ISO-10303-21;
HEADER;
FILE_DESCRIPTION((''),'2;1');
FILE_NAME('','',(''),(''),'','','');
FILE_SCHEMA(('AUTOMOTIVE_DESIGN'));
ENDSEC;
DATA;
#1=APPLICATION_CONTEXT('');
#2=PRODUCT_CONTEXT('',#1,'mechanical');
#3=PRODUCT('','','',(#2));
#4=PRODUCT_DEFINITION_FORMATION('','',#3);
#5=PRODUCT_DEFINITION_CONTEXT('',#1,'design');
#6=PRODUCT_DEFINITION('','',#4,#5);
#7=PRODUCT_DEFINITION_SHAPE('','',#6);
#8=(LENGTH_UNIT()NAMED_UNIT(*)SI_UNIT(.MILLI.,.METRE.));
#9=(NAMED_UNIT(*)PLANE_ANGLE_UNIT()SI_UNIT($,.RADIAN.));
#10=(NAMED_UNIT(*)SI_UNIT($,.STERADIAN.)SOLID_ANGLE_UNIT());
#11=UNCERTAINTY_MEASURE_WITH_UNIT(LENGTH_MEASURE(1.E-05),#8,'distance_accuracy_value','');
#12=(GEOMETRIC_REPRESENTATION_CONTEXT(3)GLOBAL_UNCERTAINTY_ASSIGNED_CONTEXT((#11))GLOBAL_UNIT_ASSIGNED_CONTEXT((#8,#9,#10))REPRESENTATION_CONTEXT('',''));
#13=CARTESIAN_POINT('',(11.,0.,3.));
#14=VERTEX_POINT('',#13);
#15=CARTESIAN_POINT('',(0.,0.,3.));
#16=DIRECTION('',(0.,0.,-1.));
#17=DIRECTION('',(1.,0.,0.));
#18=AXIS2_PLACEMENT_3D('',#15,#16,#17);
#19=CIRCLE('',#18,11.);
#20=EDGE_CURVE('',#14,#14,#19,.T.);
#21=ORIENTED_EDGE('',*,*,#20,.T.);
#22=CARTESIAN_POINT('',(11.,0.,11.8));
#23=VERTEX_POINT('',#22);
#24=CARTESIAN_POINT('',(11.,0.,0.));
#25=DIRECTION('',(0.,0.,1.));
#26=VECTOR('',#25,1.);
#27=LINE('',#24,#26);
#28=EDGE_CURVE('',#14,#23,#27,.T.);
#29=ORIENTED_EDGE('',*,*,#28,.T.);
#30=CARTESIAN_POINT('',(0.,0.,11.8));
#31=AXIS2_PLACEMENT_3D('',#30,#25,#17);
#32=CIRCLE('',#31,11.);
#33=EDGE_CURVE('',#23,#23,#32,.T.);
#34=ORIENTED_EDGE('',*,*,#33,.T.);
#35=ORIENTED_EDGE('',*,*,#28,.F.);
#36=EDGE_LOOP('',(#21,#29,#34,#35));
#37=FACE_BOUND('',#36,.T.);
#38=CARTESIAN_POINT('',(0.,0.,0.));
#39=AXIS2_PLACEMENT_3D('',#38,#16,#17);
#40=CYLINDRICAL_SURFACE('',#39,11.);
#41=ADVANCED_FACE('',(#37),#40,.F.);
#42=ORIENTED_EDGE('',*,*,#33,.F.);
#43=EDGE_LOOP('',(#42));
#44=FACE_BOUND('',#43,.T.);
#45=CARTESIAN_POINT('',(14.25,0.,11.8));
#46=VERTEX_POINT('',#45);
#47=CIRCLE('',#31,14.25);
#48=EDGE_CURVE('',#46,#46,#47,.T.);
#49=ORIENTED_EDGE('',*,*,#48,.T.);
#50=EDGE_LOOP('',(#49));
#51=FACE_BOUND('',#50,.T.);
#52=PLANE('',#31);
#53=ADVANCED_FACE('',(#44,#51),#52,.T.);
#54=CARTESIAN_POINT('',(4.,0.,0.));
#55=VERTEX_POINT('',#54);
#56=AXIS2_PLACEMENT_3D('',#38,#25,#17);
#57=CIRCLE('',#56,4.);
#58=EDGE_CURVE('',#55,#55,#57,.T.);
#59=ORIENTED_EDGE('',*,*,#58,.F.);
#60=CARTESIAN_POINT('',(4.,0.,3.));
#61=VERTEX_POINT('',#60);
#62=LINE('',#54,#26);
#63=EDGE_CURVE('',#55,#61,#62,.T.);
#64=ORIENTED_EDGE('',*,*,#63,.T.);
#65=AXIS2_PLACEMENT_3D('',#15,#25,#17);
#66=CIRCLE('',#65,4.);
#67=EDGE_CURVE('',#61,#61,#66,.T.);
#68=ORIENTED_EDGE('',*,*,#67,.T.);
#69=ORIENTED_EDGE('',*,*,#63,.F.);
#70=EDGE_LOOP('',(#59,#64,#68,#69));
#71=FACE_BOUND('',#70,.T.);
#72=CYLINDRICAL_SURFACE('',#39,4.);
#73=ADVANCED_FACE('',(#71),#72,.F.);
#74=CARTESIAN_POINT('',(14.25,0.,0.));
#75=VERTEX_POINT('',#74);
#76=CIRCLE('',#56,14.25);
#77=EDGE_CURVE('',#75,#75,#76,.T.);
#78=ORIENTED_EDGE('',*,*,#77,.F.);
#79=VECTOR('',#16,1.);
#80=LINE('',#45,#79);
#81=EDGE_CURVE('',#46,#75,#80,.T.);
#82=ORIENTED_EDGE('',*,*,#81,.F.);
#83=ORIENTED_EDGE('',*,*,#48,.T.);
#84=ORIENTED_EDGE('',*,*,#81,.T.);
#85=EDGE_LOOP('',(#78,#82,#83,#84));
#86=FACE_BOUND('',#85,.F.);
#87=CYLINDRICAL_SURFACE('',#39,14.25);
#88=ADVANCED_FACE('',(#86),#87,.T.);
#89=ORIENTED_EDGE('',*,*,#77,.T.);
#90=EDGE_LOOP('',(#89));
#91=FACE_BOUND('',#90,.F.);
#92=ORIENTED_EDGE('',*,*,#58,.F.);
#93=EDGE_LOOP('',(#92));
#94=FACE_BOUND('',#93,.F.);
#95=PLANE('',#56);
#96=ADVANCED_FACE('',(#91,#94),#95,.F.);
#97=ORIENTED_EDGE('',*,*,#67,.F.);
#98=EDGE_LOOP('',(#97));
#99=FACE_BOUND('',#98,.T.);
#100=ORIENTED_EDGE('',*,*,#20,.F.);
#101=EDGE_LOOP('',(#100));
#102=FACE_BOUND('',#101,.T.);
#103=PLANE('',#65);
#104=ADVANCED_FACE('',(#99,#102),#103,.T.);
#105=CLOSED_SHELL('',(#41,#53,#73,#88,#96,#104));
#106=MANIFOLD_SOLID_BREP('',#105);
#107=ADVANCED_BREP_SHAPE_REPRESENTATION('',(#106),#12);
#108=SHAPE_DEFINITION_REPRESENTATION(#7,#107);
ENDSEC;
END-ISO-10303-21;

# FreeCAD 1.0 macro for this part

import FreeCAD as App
import Part
import Sketcher
from FreeCAD import Vector

doc = App.newDocument("Part")
body = doc.addObject("PartDesign::Body", "Body")

sketch1 = doc.addObject("Sketcher::SketchObject", "Sketch")
body.addObject(sketch1)
sketch1.AttachmentSupport = (doc.XY_Plane, [""])
sketch1.MapMode = "FlatFace"
sketch1.addGeometry([
    Part.Circle(Vector(0, 0, 0), Vector(0, 0, 1), 14),
    Part.Circle(Vector(0, 0, 0), Vector(0, 0, 1), 11),
], False)
sketch1.addConstraint([
    Sketcher.Constraint("Coincident", 0, 3, -1, 1),
    Sketcher.Constraint("Coincident", 1, 3, -1, 1),
    Sketcher.Constraint("Diameter", 1, 22.0),
    Sketcher.Constraint("Diameter", 0, 28.5),
])
pad1 = doc.addObject("PartDesign::Pad", "Pad")
body.addObject(pad1)
pad1.Profile = sketch1
pad1.Length = 11.8

sketch2 = doc.addObject("Sketcher::SketchObject", "Sketch001")
body.addObject(sketch2)
sketch2.AttachmentSupport = (doc.XY_Plane, [""])
sketch2.MapMode = "FlatFace"
sketch2.addGeometry([
    Part.Circle(Vector(0, 0, 0), Vector(0, 0, 1), 14.2),
    Part.Circle(Vector(0, 0, 0), Vector(0, 0, 1), 4),
], False)
sketch2.addConstraint([
    Sketcher.Constraint("Coincident", 0, 3, -1, 1),
    Sketcher.Constraint("Coincident", 1, 3, -1, 1),
    Sketcher.Constraint("Diameter", 1, 8.0),
    Sketcher.Constraint("Diameter", 0, 28.5),
])
pad2 = doc.addObject("PartDesign::Pad", "Pad001")
body.addObject(pad2)
pad2.Profile = sketch2
pad2.Length = 3

doc.recompute()
